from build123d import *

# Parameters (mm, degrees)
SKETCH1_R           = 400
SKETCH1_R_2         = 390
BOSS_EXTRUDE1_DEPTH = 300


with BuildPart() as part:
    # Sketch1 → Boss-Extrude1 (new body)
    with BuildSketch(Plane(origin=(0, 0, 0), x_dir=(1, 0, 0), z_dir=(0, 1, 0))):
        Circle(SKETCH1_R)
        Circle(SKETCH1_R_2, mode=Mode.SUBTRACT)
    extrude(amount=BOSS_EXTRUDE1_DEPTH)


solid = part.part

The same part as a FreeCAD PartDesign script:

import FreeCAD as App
import Part
import Sketcher
from FreeCAD import Vector

doc = App.newDocument("Part")
body = doc.addObject("PartDesign::Body", "Body")

# Sketch on XZ plane
sketch1 = doc.addObject("Sketcher::SketchObject", "Sketch")
body.addObject(sketch1)
sketch1.AttachmentSupport = (doc.XZ_Plane, [""])
sketch1.MapMode = "FlatFace"
sketch1.addGeometry([
    Part.Circle(Vector(0, 0, 0), Vector(0, 0, 1), 400),
    Part.Circle(Vector(0, 0, 0), Vector(0, 0, 1), 390),
], False)
sketch1.addConstraint([
    Sketcher.Constraint("Coincident", 0, 3, -1, 1),
    Sketcher.Constraint("Coincident", 1, 3, -1, 1),
    Sketcher.Constraint("Diameter", 0, 800.0),
    Sketcher.Constraint("Diameter", 1, 780.0),
])
pad1 = doc.addObject("PartDesign::Pad", "Pad")
body.addObject(pad1)
pad1.Profile = sketch1
pad1.Length = 300
pad1.Reversed = True

doc.recompute()
